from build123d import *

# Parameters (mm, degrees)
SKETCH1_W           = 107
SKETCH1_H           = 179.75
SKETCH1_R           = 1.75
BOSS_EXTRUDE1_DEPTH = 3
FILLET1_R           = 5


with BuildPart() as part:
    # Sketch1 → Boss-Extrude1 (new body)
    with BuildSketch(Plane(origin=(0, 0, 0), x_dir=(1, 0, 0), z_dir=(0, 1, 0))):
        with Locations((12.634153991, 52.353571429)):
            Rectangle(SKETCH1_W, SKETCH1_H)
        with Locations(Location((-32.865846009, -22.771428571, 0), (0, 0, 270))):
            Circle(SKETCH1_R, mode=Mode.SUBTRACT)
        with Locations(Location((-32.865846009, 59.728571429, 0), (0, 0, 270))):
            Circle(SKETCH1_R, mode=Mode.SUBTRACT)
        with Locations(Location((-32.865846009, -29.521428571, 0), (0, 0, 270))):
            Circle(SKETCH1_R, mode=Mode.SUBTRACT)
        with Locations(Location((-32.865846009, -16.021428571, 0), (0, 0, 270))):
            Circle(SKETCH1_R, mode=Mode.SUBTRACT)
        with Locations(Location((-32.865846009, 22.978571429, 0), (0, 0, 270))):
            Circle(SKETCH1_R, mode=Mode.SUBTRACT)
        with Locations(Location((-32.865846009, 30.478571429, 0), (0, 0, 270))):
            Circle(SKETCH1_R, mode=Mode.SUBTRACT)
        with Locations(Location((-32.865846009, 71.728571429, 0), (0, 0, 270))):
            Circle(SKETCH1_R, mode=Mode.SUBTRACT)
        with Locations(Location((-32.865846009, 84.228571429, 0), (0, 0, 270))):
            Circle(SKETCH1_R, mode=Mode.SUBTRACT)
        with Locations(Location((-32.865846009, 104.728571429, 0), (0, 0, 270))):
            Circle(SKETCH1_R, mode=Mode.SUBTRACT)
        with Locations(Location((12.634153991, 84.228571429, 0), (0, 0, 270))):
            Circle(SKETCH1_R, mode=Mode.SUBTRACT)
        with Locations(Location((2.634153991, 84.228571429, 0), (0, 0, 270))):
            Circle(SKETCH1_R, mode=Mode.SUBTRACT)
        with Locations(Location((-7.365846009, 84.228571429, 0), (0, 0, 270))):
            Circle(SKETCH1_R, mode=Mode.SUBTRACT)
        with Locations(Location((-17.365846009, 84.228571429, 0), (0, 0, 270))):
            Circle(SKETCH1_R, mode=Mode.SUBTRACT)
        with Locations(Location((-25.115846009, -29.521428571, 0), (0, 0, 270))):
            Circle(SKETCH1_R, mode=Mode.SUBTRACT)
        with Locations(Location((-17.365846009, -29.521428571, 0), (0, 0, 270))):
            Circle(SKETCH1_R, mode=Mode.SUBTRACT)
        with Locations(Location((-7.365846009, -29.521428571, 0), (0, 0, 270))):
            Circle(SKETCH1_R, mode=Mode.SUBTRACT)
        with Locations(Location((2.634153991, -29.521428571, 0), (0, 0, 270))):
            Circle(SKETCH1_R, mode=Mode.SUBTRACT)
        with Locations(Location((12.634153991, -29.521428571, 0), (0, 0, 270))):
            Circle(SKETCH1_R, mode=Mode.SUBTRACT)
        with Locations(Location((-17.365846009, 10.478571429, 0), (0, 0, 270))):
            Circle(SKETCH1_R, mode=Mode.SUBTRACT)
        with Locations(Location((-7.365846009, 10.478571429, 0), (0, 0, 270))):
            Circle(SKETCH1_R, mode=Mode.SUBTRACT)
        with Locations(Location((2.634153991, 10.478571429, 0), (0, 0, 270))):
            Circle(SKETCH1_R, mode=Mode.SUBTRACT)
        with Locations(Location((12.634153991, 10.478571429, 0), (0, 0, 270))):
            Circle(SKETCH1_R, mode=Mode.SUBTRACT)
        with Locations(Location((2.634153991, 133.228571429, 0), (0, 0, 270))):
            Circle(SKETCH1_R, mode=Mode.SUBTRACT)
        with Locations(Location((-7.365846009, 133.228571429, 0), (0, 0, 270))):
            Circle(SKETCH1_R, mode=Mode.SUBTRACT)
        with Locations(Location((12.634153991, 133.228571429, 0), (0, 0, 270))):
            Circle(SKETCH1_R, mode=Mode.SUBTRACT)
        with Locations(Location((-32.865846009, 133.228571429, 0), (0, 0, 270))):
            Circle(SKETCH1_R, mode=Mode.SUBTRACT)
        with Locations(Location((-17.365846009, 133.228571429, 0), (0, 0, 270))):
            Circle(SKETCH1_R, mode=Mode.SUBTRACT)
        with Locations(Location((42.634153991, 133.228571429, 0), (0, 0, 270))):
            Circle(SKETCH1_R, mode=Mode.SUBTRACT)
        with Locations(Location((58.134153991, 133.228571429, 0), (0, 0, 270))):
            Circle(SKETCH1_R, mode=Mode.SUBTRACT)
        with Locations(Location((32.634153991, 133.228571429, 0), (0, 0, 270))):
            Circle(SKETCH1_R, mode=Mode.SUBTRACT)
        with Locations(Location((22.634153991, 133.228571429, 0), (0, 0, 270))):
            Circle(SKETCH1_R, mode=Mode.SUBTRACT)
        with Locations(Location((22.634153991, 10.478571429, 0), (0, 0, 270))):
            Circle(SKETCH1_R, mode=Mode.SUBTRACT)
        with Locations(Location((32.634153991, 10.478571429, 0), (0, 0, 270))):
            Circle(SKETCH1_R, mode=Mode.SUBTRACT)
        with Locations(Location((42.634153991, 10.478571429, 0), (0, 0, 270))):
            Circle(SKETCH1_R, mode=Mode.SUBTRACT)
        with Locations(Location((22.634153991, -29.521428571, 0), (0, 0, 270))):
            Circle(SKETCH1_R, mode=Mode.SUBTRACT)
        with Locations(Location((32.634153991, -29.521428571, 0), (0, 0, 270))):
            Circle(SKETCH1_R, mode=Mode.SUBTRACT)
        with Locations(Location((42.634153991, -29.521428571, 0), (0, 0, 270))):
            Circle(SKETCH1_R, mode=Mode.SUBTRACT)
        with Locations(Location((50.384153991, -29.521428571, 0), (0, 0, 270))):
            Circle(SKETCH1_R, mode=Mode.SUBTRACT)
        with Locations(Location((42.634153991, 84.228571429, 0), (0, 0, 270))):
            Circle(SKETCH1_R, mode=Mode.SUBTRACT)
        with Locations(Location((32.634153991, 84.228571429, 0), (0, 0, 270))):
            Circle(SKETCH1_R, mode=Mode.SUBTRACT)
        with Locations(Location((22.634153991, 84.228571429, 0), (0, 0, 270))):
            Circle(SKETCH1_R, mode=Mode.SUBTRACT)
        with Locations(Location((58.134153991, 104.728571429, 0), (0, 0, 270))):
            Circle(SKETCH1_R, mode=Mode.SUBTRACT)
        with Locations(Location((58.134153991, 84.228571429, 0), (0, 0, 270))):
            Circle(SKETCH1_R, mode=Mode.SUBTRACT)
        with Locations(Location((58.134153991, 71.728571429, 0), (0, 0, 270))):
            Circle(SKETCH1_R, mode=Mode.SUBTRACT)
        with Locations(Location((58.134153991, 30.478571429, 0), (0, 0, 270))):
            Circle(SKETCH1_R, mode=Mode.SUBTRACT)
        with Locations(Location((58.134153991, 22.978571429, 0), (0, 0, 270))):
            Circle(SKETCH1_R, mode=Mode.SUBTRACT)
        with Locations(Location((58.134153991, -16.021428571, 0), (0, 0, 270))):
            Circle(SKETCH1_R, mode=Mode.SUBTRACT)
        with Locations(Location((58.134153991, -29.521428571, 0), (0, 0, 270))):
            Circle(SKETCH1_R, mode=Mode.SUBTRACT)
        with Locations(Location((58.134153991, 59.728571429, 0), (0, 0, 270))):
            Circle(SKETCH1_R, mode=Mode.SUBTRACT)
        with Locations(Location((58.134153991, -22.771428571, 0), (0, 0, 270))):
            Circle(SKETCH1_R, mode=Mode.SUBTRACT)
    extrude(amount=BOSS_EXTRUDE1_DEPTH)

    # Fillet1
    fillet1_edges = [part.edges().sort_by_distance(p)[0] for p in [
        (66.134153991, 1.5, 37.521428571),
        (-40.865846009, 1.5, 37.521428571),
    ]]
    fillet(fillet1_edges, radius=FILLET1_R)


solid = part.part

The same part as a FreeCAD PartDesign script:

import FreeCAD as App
import Part
import Sketcher
from FreeCAD import Vector


def edges_at(feature, points):
    """Names of the edges that pass closest to the given points."""
    edges = feature.Shape.Edges
    near = lambda p: min(range(len(edges)), key=lambda i: edges[i].distToShape(Part.Vertex(*p))[0])
    return sorted({f"Edge{near(p) + 1}" for p in points})


def add_polygon(sketch, points):
    """Adds a closed chain of lines whose ends are joined by coincident constraints."""
    first, n = sketch.GeometryCount, len(points)
    for a, b in zip(points, points[1:] + points[:1]):
        sketch.addGeometry(Part.LineSegment(App.Vector(*a, 0), App.Vector(*b, 0)), False)
    for i in range(n):
        sketch.addConstraint(Sketcher.Constraint("Coincident", first + i, 2, first + (i + 1) % n, 1))

doc = App.newDocument("Part")
params = doc.addObject("Spreadsheet::Sheet", "Params")
for row, (alias, value) in enumerate([
    ("sketch1_diameter", "3.5 mm"),
    ("sketch1_width", "107 mm"),
    ("sketch1_height", "179.75 mm"),
    ("pad1_length", "3 mm"),
    ("fillet_radius", "5 mm"),
], start=1):
    params.set(f"A{row}", alias)
    params.set(f"B{row}", "=" + value)
    params.setAlias(f"B{row}", alias)

body = doc.addObject("PartDesign::Body", "Body")

sketch1 = body.newObject("Sketcher::SketchObject", "Sketch")
sketch1.AttachmentSupport = (doc.getObject("XZ_Plane"), [""])
sketch1.MapMode = "FlatFace"
add_polygon(sketch1, [(-40.865846, -142.228571), (-40.865846, 37.521429), (66.134154, 37.521429), (66.134154, -142.228571)])
sketch1.addGeometry(Part.Circle(Vector(-32.865846, 29.521429, 0), Vector(0, 0, 1), 1.75), False)
sketch1.addGeometry(Part.Circle(Vector(-32.865846, 22.771429, 0), Vector(0, 0, 1), 1.75), False)
sketch1.addGeometry(Part.Circle(Vector(-25.115846, 29.521429, 0), Vector(0, 0, 1), 1.75), False)
sketch1.addGeometry(Part.Circle(Vector(-32.865846, 16.021429, 0), Vector(0, 0, 1), 1.75), False)
sketch1.addGeometry(Part.Circle(Vector(-17.365846, 29.521429, 0), Vector(0, 0, 1), 1.75), False)
sketch1.addGeometry(Part.Circle(Vector(-7.365846, 29.521429, 0), Vector(0, 0, 1), 1.75), False)
sketch1.addGeometry(Part.Circle(Vector(2.634154, 29.521429, 0), Vector(0, 0, 1), 1.75), False)
sketch1.addGeometry(Part.Circle(Vector(-32.865846, -22.978571, 0), Vector(0, 0, 1), 1.75), False)
sketch1.addGeometry(Part.Circle(Vector(-32.865846, -30.478571, 0), Vector(0, 0, 1), 1.75), False)
sketch1.addGeometry(Part.Circle(Vector(-17.365846, -10.478571, 0), Vector(0, 0, 1), 1.75), False)
sketch1.addGeometry(Part.Circle(Vector(-7.365846, -10.478571, 0), Vector(0, 0, 1), 1.75), False)
sketch1.addGeometry(Part.Circle(Vector(2.634154, -10.478571, 0), Vector(0, 0, 1), 1.75), False)
sketch1.addGeometry(Part.Circle(Vector(12.634154, 29.521429, 0), Vector(0, 0, 1), 1.75), False)
sketch1.addGeometry(Part.Circle(Vector(22.634154, 29.521429, 0), Vector(0, 0, 1), 1.75), False)
sketch1.addGeometry(Part.Circle(Vector(32.634154, 29.521429, 0), Vector(0, 0, 1), 1.75), False)
sketch1.addGeometry(Part.Circle(Vector(42.634154, 29.521429, 0), Vector(0, 0, 1), 1.75), False)
sketch1.addGeometry(Part.Circle(Vector(50.384154, 29.521429, 0), Vector(0, 0, 1), 1.75), False)
sketch1.addGeometry(Part.Circle(Vector(58.134154, 29.521429, 0), Vector(0, 0, 1), 1.75), False)
sketch1.addGeometry(Part.Circle(Vector(58.134154, 22.771429, 0), Vector(0, 0, 1), 1.75), False)
sketch1.addGeometry(Part.Circle(Vector(58.134154, 16.021429, 0), Vector(0, 0, 1), 1.75), False)
sketch1.addGeometry(Part.Circle(Vector(12.634154, -10.478571, 0), Vector(0, 0, 1), 1.75), False)
sketch1.addGeometry(Part.Circle(Vector(22.634154, -10.478571, 0), Vector(0, 0, 1), 1.75), False)
sketch1.addGeometry(Part.Circle(Vector(32.634154, -10.478571, 0), Vector(0, 0, 1), 1.75), False)
sketch1.addGeometry(Part.Circle(Vector(42.634154, -10.478571, 0), Vector(0, 0, 1), 1.75), False)
sketch1.addGeometry(Part.Circle(Vector(58.134154, -22.978571, 0), Vector(0, 0, 1), 1.75), False)
sketch1.addGeometry(Part.Circle(Vector(58.134154, -30.478571, 0), Vector(0, 0, 1), 1.75), False)
sketch1.addGeometry(Part.Circle(Vector(-32.865846, -59.728571, 0), Vector(0, 0, 1), 1.75), False)
sketch1.addGeometry(Part.Circle(Vector(-32.865846, -71.728571, 0), Vector(0, 0, 1), 1.75), False)
sketch1.addGeometry(Part.Circle(Vector(-32.865846, -84.228571, 0), Vector(0, 0, 1), 1.75), False)
sketch1.addGeometry(Part.Circle(Vector(-17.365846, -84.228571, 0), Vector(0, 0, 1), 1.75), False)
sketch1.addGeometry(Part.Circle(Vector(-7.365846, -84.228571, 0), Vector(0, 0, 1), 1.75), False)
sketch1.addGeometry(Part.Circle(Vector(2.634154, -84.228571, 0), Vector(0, 0, 1), 1.75), False)
sketch1.addGeometry(Part.Circle(Vector(-32.865846, -104.728571, 0), Vector(0, 0, 1), 1.75), False)
sketch1.addGeometry(Part.Circle(Vector(-32.865846, -133.228571, 0), Vector(0, 0, 1), 1.75), False)
sketch1.addGeometry(Part.Circle(Vector(-17.365846, -133.228571, 0), Vector(0, 0, 1), 1.75), False)
sketch1.addGeometry(Part.Circle(Vector(-7.365846, -133.228571, 0), Vector(0, 0, 1), 1.75), False)
sketch1.addGeometry(Part.Circle(Vector(2.634154, -133.228571, 0), Vector(0, 0, 1), 1.75), False)
sketch1.addGeometry(Part.Circle(Vector(12.634154, -84.228571, 0), Vector(0, 0, 1), 1.75), False)
sketch1.addGeometry(Part.Circle(Vector(22.634154, -84.228571, 0), Vector(0, 0, 1), 1.75), False)
sketch1.addGeometry(Part.Circle(Vector(32.634154, -84.228571, 0), Vector(0, 0, 1), 1.75), False)
sketch1.addGeometry(Part.Circle(Vector(58.134154, -59.728571, 0), Vector(0, 0, 1), 1.75), False)
sketch1.addGeometry(Part.Circle(Vector(58.134154, -71.728571, 0), Vector(0, 0, 1), 1.75), False)
sketch1.addGeometry(Part.Circle(Vector(42.634154, -84.228571, 0), Vector(0, 0, 1), 1.75), False)
sketch1.addGeometry(Part.Circle(Vector(58.134154, -84.228571, 0), Vector(0, 0, 1), 1.75), False)
sketch1.addGeometry(Part.Circle(Vector(12.634154, -133.228571, 0), Vector(0, 0, 1), 1.75), False)
sketch1.addGeometry(Part.Circle(Vector(22.634154, -133.228571, 0), Vector(0, 0, 1), 1.75), False)
sketch1.addGeometry(Part.Circle(Vector(32.634154, -133.228571, 0), Vector(0, 0, 1), 1.75), False)
sketch1.addGeometry(Part.Circle(Vector(58.134154, -104.728571, 0), Vector(0, 0, 1), 1.75), False)
sketch1.addGeometry(Part.Circle(Vector(42.634154, -133.228571, 0), Vector(0, 0, 1), 1.75), False)
sketch1.addGeometry(Part.Circle(Vector(58.134154, -133.228571, 0), Vector(0, 0, 1), 1.75), False)
sketch1.addConstraint([
    Sketcher.Constraint("Vertical", 0),
    Sketcher.Constraint("Horizontal", 1),
    Sketcher.Constraint("Vertical", 2),
    Sketcher.Constraint("Horizontal", 3),
    Sketcher.Constraint("Equal", 4, 5),
    Sketcher.Constraint("Equal", 5, 6),
    Sketcher.Constraint("Equal", 6, 7),
    Sketcher.Constraint("Equal", 7, 8),
    Sketcher.Constraint("Equal", 8, 9),
    Sketcher.Constraint("Equal", 9, 10),
    Sketcher.Constraint("Equal", 10, 11),
    Sketcher.Constraint("Equal", 11, 12),
    Sketcher.Constraint("Equal", 12, 13),
    Sketcher.Constraint("Equal", 13, 14),
    Sketcher.Constraint("Equal", 14, 15),
    Sketcher.Constraint("Equal", 15, 16),
    Sketcher.Constraint("Equal", 16, 17),
    Sketcher.Constraint("Equal", 17, 18),
    Sketcher.Constraint("Equal", 18, 19),
    Sketcher.Constraint("Equal", 19, 20),
    Sketcher.Constraint("Equal", 20, 21),
    Sketcher.Constraint("Equal", 21, 22),
    Sketcher.Constraint("Equal", 22, 23),
    Sketcher.Constraint("Equal", 23, 24),
    Sketcher.Constraint("Equal", 24, 25),
    Sketcher.Constraint("Equal", 25, 26),
    Sketcher.Constraint("Equal", 26, 27),
    Sketcher.Constraint("Equal", 27, 28),
    Sketcher.Constraint("Equal", 28, 29),
    Sketcher.Constraint("Equal", 29, 30),
    Sketcher.Constraint("Equal", 30, 31),
    Sketcher.Constraint("Equal", 31, 32),
    Sketcher.Constraint("Equal", 32, 33),
    Sketcher.Constraint("Equal", 33, 34),
    Sketcher.Constraint("Equal", 34, 35),
    Sketcher.Constraint("Equal", 35, 36),
    Sketcher.Constraint("Equal", 36, 37),
    Sketcher.Constraint("Equal", 37, 38),
    Sketcher.Constraint("Equal", 38, 39),
    Sketcher.Constraint("Equal", 39, 40),
    Sketcher.Constraint("Equal", 40, 41),
    Sketcher.Constraint("Equal", 41, 42),
    Sketcher.Constraint("Equal", 42, 43),
    Sketcher.Constraint("Equal", 43, 44),
    Sketcher.Constraint("Equal", 44, 45),
    Sketcher.Constraint("Equal", 45, 46),
    Sketcher.Constraint("Equal", 46, 47),
    Sketcher.Constraint("Equal", 47, 48),
    Sketcher.Constraint("Equal", 48, 49),
    Sketcher.Constraint("Equal", 49, 50),
    Sketcher.Constraint("Equal", 50, 51),
    Sketcher.Constraint("Equal", 51, 52),
    Sketcher.Constraint("Equal", 52, 53),
    Sketcher.Constraint("Horizontal", 4, 3, 6, 3),
    Sketcher.Constraint("Horizontal", 6, 3, 8, 3),
    Sketcher.Constraint("Horizontal", 8, 3, 9, 3),
    Sketcher.Constraint("Horizontal", 9, 3, 10, 3),
    Sketcher.Constraint("Horizontal", 13, 3, 14, 3),
    Sketcher.Constraint("Horizontal", 14, 3, 15, 3),
    Sketcher.Constraint("Horizontal", 10, 3, 16, 3),
    Sketcher.Constraint("Horizontal", 16, 3, 17, 3),
    Sketcher.Constraint("Horizontal", 17, 3, 18, 3),
    Sketcher.Constraint("Horizontal", 18, 3, 19, 3),
    Sketcher.Constraint("Horizontal", 19, 3, 20, 3),
    Sketcher.Constraint("Horizontal", 20, 3, 21, 3),
    Sketcher.Constraint("Horizontal", 5, 3, 22, 3),
    Sketcher.Constraint("Horizontal", 7, 3, 23, 3),
    Sketcher.Constraint("Horizontal", 15, 3, 24, 3),
    Sketcher.Constraint("Horizontal", 24, 3, 25, 3),
    Sketcher.Constraint("Horizontal", 25, 3, 26, 3),
    Sketcher.Constraint("Horizontal", 26, 3, 27, 3),
    Sketcher.Constraint("Horizontal", 11, 3, 28, 3),
    Sketcher.Constraint("Horizontal", 12, 3, 29, 3),
    Sketcher.Constraint("Horizontal", 32, 3, 33, 3),
    Sketcher.Constraint("Horizontal", 33, 3, 34, 3),
    Sketcher.Constraint("Horizontal", 34, 3, 35, 3),
    Sketcher.Constraint("Horizontal", 37, 3, 38, 3),
    Sketcher.Constraint("Horizontal", 38, 3, 39, 3),
    Sketcher.Constraint("Horizontal", 39, 3, 40, 3),
    Sketcher.Constraint("Horizontal", 35, 3, 41, 3),
    Sketcher.Constraint("Horizontal", 41, 3, 42, 3),
    Sketcher.Constraint("Horizontal", 42, 3, 43, 3),
    Sketcher.Constraint("Horizontal", 30, 3, 44, 3),
    Sketcher.Constraint("Horizontal", 31, 3, 45, 3),
    Sketcher.Constraint("Horizontal", 43, 3, 46, 3),
    Sketcher.Constraint("Horizontal", 46, 3, 47, 3),
    Sketcher.Constraint("Horizontal", 40, 3, 48, 3),
    Sketcher.Constraint("Horizontal", 48, 3, 49, 3),
    Sketcher.Constraint("Horizontal", 49, 3, 50, 3),
    Sketcher.Constraint("Horizontal", 36, 3, 51, 3),
    Sketcher.Constraint("Horizontal", 50, 3, 52, 3),
    Sketcher.Constraint("Horizontal", 52, 3, 53, 3),
    Sketcher.Constraint("Vertical", 4, 3, 5, 3),
    Sketcher.Constraint("Vertical", 5, 3, 7, 3),
    Sketcher.Constraint("Vertical", 7, 3, 11, 3),
    Sketcher.Constraint("Vertical", 11, 3, 12, 3),
    Sketcher.Constraint("Vertical", 8, 3, 13, 3),
    Sketcher.Constraint("Vertical", 9, 3, 14, 3),
    Sketcher.Constraint("Vertical", 10, 3, 15, 3),
    Sketcher.Constraint("Vertical", 21, 3, 22, 3),
    Sketcher.Constraint("Vertical", 22, 3, 23, 3),
    Sketcher.Constraint("Vertical", 16, 3, 24, 3),
    Sketcher.Constraint("Vertical", 17, 3, 25, 3),
    Sketcher.Constraint("Vertical", 18, 3, 26, 3),
    Sketcher.Constraint("Vertical", 19, 3, 27, 3),
    Sketcher.Constraint("Vertical", 23, 3, 28, 3),
    Sketcher.Constraint("Vertical", 28, 3, 29, 3),
    Sketcher.Constraint("Vertical", 12, 3, 30, 3),
    Sketcher.Constraint("Vertical", 30, 3, 31, 3),
    Sketcher.Constraint("Vertical", 31, 3, 32, 3),
    Sketcher.Constraint("Vertical", 13, 3, 33, 3),
    Sketcher.Constraint("Vertical", 14, 3, 34, 3),
    Sketcher.Constraint("Vertical", 15, 3, 35, 3),
    Sketcher.Constraint("Vertical", 32, 3, 36, 3),
    Sketcher.Constraint("Vertical", 36, 3, 37, 3),
    Sketcher.Constraint("Vertical", 33, 3, 38, 3),
    Sketcher.Constraint("Vertical", 34, 3, 39, 3),
    Sketcher.Constraint("Vertical", 35, 3, 40, 3),
    Sketcher.Constraint("Vertical", 24, 3, 41, 3),
    Sketcher.Constraint("Vertical", 25, 3, 42, 3),
    Sketcher.Constraint("Vertical", 26, 3, 43, 3),
    Sketcher.Constraint("Vertical", 29, 3, 44, 3),
    Sketcher.Constraint("Vertical", 44, 3, 45, 3),
    Sketcher.Constraint("Vertical", 27, 3, 46, 3),
    Sketcher.Constraint("Vertical", 45, 3, 47, 3),
    Sketcher.Constraint("Vertical", 41, 3, 48, 3),
    Sketcher.Constraint("Vertical", 42, 3, 49, 3),
    Sketcher.Constraint("Vertical", 43, 3, 50, 3),
    Sketcher.Constraint("Vertical", 47, 3, 51, 3),
    Sketcher.Constraint("Vertical", 46, 3, 52, 3),
    Sketcher.Constraint("Vertical", 51, 3, 53, 3),
    Sketcher.Constraint("Diameter", 4, 3.5),
    Sketcher.Constraint("DistanceX", 1, 1, 1, 2, 107.0),
    Sketcher.Constraint("DistanceX", 8, 3, 9, 3, 10.0),
    Sketcher.Constraint("DistanceX", 9, 3, 10, 3, 10.0),
    Sketcher.Constraint("DistanceY", 11, 3, 7, 3, 39.0),
    Sketcher.Constraint("DistanceY", 12, 3, 4, 3, 60.0),
    Sketcher.Constraint("DistanceY", 12, 3, 13, 3, 20.0),
    Sketcher.Constraint("DistanceX", 10, 3, 16, 3, 10.0),
    Sketcher.Constraint("DistanceX", 16, 3, 17, 3, 10.0),
    Sketcher.Constraint("DistanceX", 17, 3, 18, 3, 10.0),
    Sketcher.Constraint("DistanceX", 18, 3, 19, 3, 10.0),
    Sketcher.Constraint("DistanceY", 31, 3, 30, 3, 12.0),
    Sketcher.Constraint("DistanceY", 36, 3, 31, 3, 33.0),
    Sketcher.Constraint("DistanceY", 37, 3, 32, 3, 49.0),
    Sketcher.Constraint("DistanceX", 0, 2, 4, 3, 8.0),
    Sketcher.Constraint("DistanceY", 4, 3, 0, 2, 8.0),
    Sketcher.Constraint("DistanceX", 21, 3, 1, 2, 8.0),
    Sketcher.Constraint("DistanceY", 2, 2, 53, 3, 9.0),
    Sketcher.Constraint("DistanceY", 0, 1, 0, 2, 179.75),
    Sketcher.Constraint("DistanceY", 7, 3, 4, 3, 13.5),
    Sketcher.Constraint("DistanceX", 4, 3, 8, 3, 15.5),
    Sketcher.Constraint("DistanceY", 32, 3, 31, 3, 12.5),
    Sketcher.Constraint("DistanceY", 5, 3, 4, 3, 6.75),
    Sketcher.Constraint("DistanceX", 4, 3, 6, 3, 7.75),
    Sketcher.Constraint("DistanceX", 19, 3, 20, 3, 7.75),
    Sketcher.Constraint("DistanceY", -1, 1, 4, 3, 29.521429),
    Sketcher.Constraint("DistanceX", 4, 3, -1, 1, 32.865846),
])
sketch1.setExpression("Constraints[135]", "Params.sketch1_diameter")
sketch1.setExpression("Constraints[136]", "Params.sketch1_width")
sketch1.setExpression("Constraints[153]", "Params.sketch1_height")
pad1 = body.newObject("PartDesign::Pad", "Pad")
pad1.Profile = sketch1
pad1.setExpression("Length", "Params.pad1_length")
pad1.Reversed = True
doc.recompute()

fillet = body.newObject("PartDesign::Fillet", "Fillet")
fillet.Base = (pad1, edges_at(pad1, [(66.134, 1.5, 37.521), (-40.866, 1.5, 37.521)]))
fillet.setExpression("Radius", "Params.fillet_radius")

doc.recompute()
